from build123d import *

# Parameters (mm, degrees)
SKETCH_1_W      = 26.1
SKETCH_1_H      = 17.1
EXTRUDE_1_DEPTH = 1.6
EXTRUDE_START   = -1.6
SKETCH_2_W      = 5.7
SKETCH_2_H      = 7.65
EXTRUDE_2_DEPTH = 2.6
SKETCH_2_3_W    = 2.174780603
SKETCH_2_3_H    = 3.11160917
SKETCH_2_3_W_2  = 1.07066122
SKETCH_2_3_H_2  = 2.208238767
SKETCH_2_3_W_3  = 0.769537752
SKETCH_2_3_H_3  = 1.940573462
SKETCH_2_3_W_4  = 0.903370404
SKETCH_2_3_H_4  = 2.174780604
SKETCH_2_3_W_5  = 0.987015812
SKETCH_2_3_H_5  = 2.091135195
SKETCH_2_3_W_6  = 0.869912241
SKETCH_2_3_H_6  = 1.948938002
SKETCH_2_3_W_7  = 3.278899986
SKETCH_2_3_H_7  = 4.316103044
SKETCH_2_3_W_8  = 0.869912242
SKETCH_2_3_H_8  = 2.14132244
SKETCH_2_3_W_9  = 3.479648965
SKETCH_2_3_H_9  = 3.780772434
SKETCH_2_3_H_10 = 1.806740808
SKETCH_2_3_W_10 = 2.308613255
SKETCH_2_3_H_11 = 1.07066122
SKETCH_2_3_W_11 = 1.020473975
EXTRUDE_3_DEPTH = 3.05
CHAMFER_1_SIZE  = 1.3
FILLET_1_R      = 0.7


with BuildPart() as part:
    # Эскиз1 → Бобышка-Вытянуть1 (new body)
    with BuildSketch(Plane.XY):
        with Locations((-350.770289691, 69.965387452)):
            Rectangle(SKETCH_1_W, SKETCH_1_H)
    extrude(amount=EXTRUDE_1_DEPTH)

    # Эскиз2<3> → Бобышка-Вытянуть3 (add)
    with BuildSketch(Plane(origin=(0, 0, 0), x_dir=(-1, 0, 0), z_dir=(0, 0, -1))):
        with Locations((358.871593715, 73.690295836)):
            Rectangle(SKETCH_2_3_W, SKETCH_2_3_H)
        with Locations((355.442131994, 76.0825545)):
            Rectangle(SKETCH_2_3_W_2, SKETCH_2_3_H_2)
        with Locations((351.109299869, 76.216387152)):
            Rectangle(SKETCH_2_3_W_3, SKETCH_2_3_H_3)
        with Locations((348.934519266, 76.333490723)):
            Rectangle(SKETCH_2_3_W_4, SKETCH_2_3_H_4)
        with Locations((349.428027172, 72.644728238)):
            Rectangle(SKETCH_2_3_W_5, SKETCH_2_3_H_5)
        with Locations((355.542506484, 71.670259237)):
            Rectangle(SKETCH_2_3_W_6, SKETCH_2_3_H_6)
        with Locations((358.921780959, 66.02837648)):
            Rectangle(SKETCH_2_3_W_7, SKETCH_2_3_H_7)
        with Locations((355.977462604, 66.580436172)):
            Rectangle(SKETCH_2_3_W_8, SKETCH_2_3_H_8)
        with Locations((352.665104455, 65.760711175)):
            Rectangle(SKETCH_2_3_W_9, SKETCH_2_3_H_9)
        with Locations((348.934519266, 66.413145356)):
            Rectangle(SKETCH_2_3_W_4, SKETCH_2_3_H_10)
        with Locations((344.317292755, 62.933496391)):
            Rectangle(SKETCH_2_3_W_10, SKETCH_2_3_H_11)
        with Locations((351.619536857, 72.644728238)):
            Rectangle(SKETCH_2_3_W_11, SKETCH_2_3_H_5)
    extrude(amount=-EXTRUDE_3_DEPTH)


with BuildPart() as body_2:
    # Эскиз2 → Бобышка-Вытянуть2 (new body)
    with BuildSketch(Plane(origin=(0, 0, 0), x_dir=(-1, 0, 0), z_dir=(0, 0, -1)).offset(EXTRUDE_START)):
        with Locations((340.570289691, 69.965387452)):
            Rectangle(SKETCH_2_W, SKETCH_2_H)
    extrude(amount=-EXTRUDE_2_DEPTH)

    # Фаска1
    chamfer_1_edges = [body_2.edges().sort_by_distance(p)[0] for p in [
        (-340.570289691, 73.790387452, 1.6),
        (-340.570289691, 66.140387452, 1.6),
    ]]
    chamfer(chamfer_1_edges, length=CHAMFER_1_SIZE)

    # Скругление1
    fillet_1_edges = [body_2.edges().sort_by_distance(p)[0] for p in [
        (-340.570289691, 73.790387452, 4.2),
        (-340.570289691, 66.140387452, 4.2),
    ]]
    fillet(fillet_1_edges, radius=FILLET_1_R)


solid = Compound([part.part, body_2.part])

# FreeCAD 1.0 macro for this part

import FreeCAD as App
import Part
import Sketcher

V = App.Vector


def edges_at(feature, points):
    """Names of the edges that pass closest to the given points."""
    edges = feature.Shape.Edges
    near = lambda p: min(range(len(edges)), key=lambda i: edges[i].distToShape(Part.Vertex(*p))[0])
    return sorted({f"Edge{near(p) + 1}" for p in points})

doc = App.newDocument("Part")
params = doc.addObject("Spreadsheet::Sheet", "Params")
for row, (alias, value) in enumerate([
    ("sketch1_width", "26.1 mm"),
    ("sketch1_height", "17.1 mm"),
    ("pad1_length", "1.6 mm"),
    ("pad2_length", "3.05 mm"),
    ("sketch3_width", "5.7 mm"),
    ("sketch3_height", "7.65 mm"),
    ("pad3_length", "2.6 mm"),
    ("chamfer_size", "1.3 mm"),
    ("fillet_radius", "0.7 mm"),
], start=1):
    params.set(f"A{row}", alias)
    params.set(f"B{row}", "=" + value)
    params.setAlias(f"B{row}", alias)

body = doc.addObject("PartDesign::Body", "Body")

# Sketch on XY plane
sketch1 = body.newObject("Sketcher::SketchObject", "Sketch")
sketch1.AttachmentSupport = (doc.getObject("XY_Plane"), [""])
sketch1.MapMode = "FlatFace"
sketch1.addGeometry([
    Part.LineSegment(V(-363.82029, 78.515387, 0), V(-363.82029, 61.415387, 0)),
    Part.LineSegment(V(-363.82029, 61.415387, 0), V(-337.72029, 61.415387, 0)),
    Part.LineSegment(V(-337.72029, 61.415387, 0), V(-337.72029, 78.515387, 0)),
    Part.LineSegment(V(-337.72029, 78.515387, 0), V(-363.82029, 78.515387, 0)),
], False)
sketch1.addConstraint([
    Sketcher.Constraint("Coincident", 0, 2, 1, 1),
    Sketcher.Constraint("Coincident", 1, 2, 2, 1),
    Sketcher.Constraint("Coincident", 2, 2, 3, 1),
    Sketcher.Constraint("Coincident", 3, 2, 0, 1),
    Sketcher.Constraint("Vertical", 0),
    Sketcher.Constraint("Horizontal", 1),
    Sketcher.Constraint("Vertical", 2),
    Sketcher.Constraint("Horizontal", 3),
    Sketcher.Constraint("DistanceX", 1, 1, 1, 2, 26.1),
    Sketcher.Constraint("DistanceY", 0, 2, 0, 1, 17.1),
    Sketcher.Constraint("DistanceX", 0, 2, -1, 1, 363.82029),
    Sketcher.Constraint("DistanceY", -1, 1, 0, 2, 61.415387),
])
sketch1.setExpression("Constraints[8]", "Params.sketch1_width")
sketch1.setExpression("Constraints[9]", "Params.sketch1_height")
pad1 = body.newObject("PartDesign::Pad", "Pad")
pad1.Profile = sketch1
pad1.setExpression("Length", "Params.pad1_length")

# Sketch on XY plane
sketch2 = body.newObject("Sketcher::SketchObject", "Sketch001")
sketch2.AttachmentSupport = (doc.getObject("XY_Plane"), [""])
sketch2.MapMode = "FlatFace"
sketch2.addGeometry([
    Part.LineSegment(V(-357.784203, 75.2461, 0), V(-357.784203, 72.134491, 0)),  # 0
    Part.LineSegment(V(-357.784203, 72.134491, 0), V(-359.958984, 72.134491, 0)),  # 1
    Part.LineSegment(V(-359.958984, 72.134491, 0), V(-359.958984, 75.2461, 0)),  # 2
    Part.LineSegment(V(-359.958984, 75.2461, 0), V(-357.784203, 75.2461, 0)),  # 3
    Part.LineSegment(V(-354.906801, 77.186674, 0), V(-354.906801, 74.978435, 0)),  # 4
    Part.LineSegment(V(-354.906801, 74.978435, 0), V(-355.977463, 74.978435, 0)),  # 5
    Part.LineSegment(V(-355.977463, 74.978435, 0), V(-355.977463, 77.186674, 0)),  # 6
    Part.LineSegment(V(-355.977463, 77.186674, 0), V(-354.906801, 77.186674, 0)),  # 7
    Part.LineSegment(V(-350.724531, 77.186674, 0), V(-350.724531, 75.2461, 0)),  # 8
    Part.LineSegment(V(-350.724531, 75.2461, 0), V(-351.494069, 75.2461, 0)),  # 9
    Part.LineSegment(V(-351.494069, 75.2461, 0), V(-351.494069, 77.186674, 0)),  # 10
    Part.LineSegment(V(-351.494069, 77.186674, 0), V(-350.724531, 77.186674, 0)),  # 11
    Part.LineSegment(V(-348.482834, 77.420881, 0), V(-348.482834, 75.2461, 0)),  # 12
    Part.LineSegment(V(-348.482834, 75.2461, 0), V(-349.386204, 75.2461, 0)),  # 13
    Part.LineSegment(V(-349.386204, 75.2461, 0), V(-349.386204, 77.420881, 0)),  # 14
    Part.LineSegment(V(-349.386204, 77.420881, 0), V(-348.482834, 77.420881, 0)),  # 15
    Part.LineSegment(V(-348.934519, 73.690296, 0), V(-348.934519, 71.599161, 0)),  # 16
    Part.LineSegment(V(-348.934519, 71.599161, 0), V(-349.921535, 71.599161, 0)),  # 17
    Part.LineSegment(V(-349.921535, 71.599161, 0), V(-349.921535, 73.690296, 0)),  # 18
    Part.LineSegment(V(-349.921535, 73.690296, 0), V(-348.934519, 73.690296, 0)),  # 19
    Part.LineSegment(V(-355.10755, 72.644728, 0), V(-355.10755, 70.69579, 0)),  # 20
    Part.LineSegment(V(-355.10755, 70.69579, 0), V(-355.977463, 70.69579, 0)),  # 21
    Part.LineSegment(V(-355.977463, 70.69579, 0), V(-355.977463, 72.644728, 0)),  # 22
    Part.LineSegment(V(-355.977463, 72.644728, 0), V(-355.10755, 72.644728, 0)),  # 23
    Part.LineSegment(V(-357.282331, 68.186428, 0), V(-357.282331, 63.870325, 0)),  # 24
    Part.LineSegment(V(-357.282331, 63.870325, 0), V(-360.561231, 63.870325, 0)),  # 25
    Part.LineSegment(V(-360.561231, 63.870325, 0), V(-360.561231, 68.186428, 0)),  # 26
    Part.LineSegment(V(-360.561231, 68.186428, 0), V(-357.282331, 68.186428, 0)),  # 27
    Part.LineSegment(V(-355.542506, 67.651097, 0), V(-355.542506, 65.509775, 0)),  # 28
    Part.LineSegment(V(-355.542506, 65.509775, 0), V(-356.412419, 65.509775, 0)),  # 29
    Part.LineSegment(V(-356.412419, 65.509775, 0), V(-356.412419, 67.651097, 0)),  # 30
    Part.LineSegment(V(-356.412419, 67.651097, 0), V(-355.542506, 67.651097, 0)),  # 31
    Part.LineSegment(V(-350.92528, 67.651097, 0), V(-350.92528, 63.870325, 0)),  # 32
    Part.LineSegment(V(-350.92528, 63.870325, 0), V(-354.404929, 63.870325, 0)),  # 33
    Part.LineSegment(V(-354.404929, 63.870325, 0), V(-354.404929, 67.651097, 0)),  # 34
    Part.LineSegment(V(-354.404929, 67.651097, 0), V(-350.92528, 67.651097, 0)),  # 35
    Part.LineSegment(V(-348.482834, 67.316516, 0), V(-348.482834, 65.509775, 0)),  # 36
    Part.LineSegment(V(-348.482834, 65.509775, 0), V(-349.386204, 65.509775, 0)),  # 37
    Part.LineSegment(V(-349.386204, 65.509775, 0), V(-349.386204, 67.316516, 0)),  # 38
    Part.LineSegment(V(-349.386204, 67.316516, 0), V(-348.482834, 67.316516, 0)),  # 39
    Part.LineSegment(V(-343.162986, 63.468827, 0), V(-343.162986, 62.398166, 0)),  # 40
    Part.LineSegment(V(-343.162986, 62.398166, 0), V(-345.471599, 62.398166, 0)),  # 41
    Part.LineSegment(V(-345.471599, 62.398166, 0), V(-345.471599, 63.468827, 0)),  # 42
    Part.LineSegment(V(-345.471599, 63.468827, 0), V(-343.162986, 63.468827, 0)),  # 43
    Part.LineSegment(V(-351.1093, 73.690296, 0), V(-351.1093, 71.599161, 0)),  # 44
    Part.LineSegment(V(-351.1093, 71.599161, 0), V(-352.129774, 71.599161, 0)),  # 45
    Part.LineSegment(V(-352.129774, 71.599161, 0), V(-352.129774, 73.690296, 0)),  # 46
    Part.LineSegment(V(-352.129774, 73.690296, 0), V(-351.1093, 73.690296, 0)),  # 47
], False)
sketch2.addConstraint([
    Sketcher.Constraint("Coincident", 0, 2, 1, 1),
    Sketcher.Constraint("Coincident", 1, 2, 2, 1),
    Sketcher.Constraint("Coincident", 2, 2, 3, 1),
    Sketcher.Constraint("Coincident", 3, 2, 0, 1),
    Sketcher.Constraint("Coincident", 4, 2, 5, 1),
    Sketcher.Constraint("Coincident", 5, 2, 6, 1),
    Sketcher.Constraint("Coincident", 6, 2, 7, 1),
    Sketcher.Constraint("Coincident", 7, 2, 4, 1),
    Sketcher.Constraint("Coincident", 8, 2, 9, 1),
    Sketcher.Constraint("Coincident", 9, 2, 10, 1),
    Sketcher.Constraint("Coincident", 10, 2, 11, 1),
    Sketcher.Constraint("Coincident", 11, 2, 8, 1),
    Sketcher.Constraint("Coincident", 12, 2, 13, 1),
    Sketcher.Constraint("Coincident", 13, 2, 14, 1),
    Sketcher.Constraint("Coincident", 14, 2, 15, 1),
    Sketcher.Constraint("Coincident", 15, 2, 12, 1),
    Sketcher.Constraint("Coincident", 16, 2, 17, 1),
    Sketcher.Constraint("Coincident", 17, 2, 18, 1),
    Sketcher.Constraint("Coincident", 18, 2, 19, 1),
    Sketcher.Constraint("Coincident", 19, 2, 16, 1),
    Sketcher.Constraint("Coincident", 20, 2, 21, 1),
    Sketcher.Constraint("Coincident", 21, 2, 22, 1),
    Sketcher.Constraint("Coincident", 22, 2, 23, 1),
    Sketcher.Constraint("Coincident", 23, 2, 20, 1),
    Sketcher.Constraint("Coincident", 24, 2, 25, 1),
    Sketcher.Constraint("Coincident", 25, 2, 26, 1),
    Sketcher.Constraint("Coincident", 26, 2, 27, 1),
    Sketcher.Constraint("Coincident", 27, 2, 24, 1),
    Sketcher.Constraint("Coincident", 28, 2, 29, 1),
    Sketcher.Constraint("Coincident", 29, 2, 30, 1),
    Sketcher.Constraint("Coincident", 30, 2, 31, 1),
    Sketcher.Constraint("Coincident", 31, 2, 28, 1),
    Sketcher.Constraint("Coincident", 32, 2, 33, 1),
    Sketcher.Constraint("Coincident", 33, 2, 34, 1),
    Sketcher.Constraint("Coincident", 34, 2, 35, 1),
    Sketcher.Constraint("Coincident", 35, 2, 32, 1),
    Sketcher.Constraint("Coincident", 36, 2, 37, 1),
    Sketcher.Constraint("Coincident", 37, 2, 38, 1),
    Sketcher.Constraint("Coincident", 38, 2, 39, 1),
    Sketcher.Constraint("Coincident", 39, 2, 36, 1),
    Sketcher.Constraint("Coincident", 40, 2, 41, 1),
    Sketcher.Constraint("Coincident", 41, 2, 42, 1),
    Sketcher.Constraint("Coincident", 42, 2, 43, 1),
    Sketcher.Constraint("Coincident", 43, 2, 40, 1),
    Sketcher.Constraint("Coincident", 44, 2, 45, 1),
    Sketcher.Constraint("Coincident", 45, 2, 46, 1),
    Sketcher.Constraint("Coincident", 46, 2, 47, 1),
    Sketcher.Constraint("Coincident", 47, 2, 44, 1),
    Sketcher.Constraint("Vertical", 0),
    Sketcher.Constraint("Horizontal", 1),
    Sketcher.Constraint("Vertical", 2),
    Sketcher.Constraint("Horizontal", 3),
    Sketcher.Constraint("Vertical", 4),
    Sketcher.Constraint("Horizontal", 5),
    Sketcher.Constraint("Vertical", 6),
    Sketcher.Constraint("Horizontal", 7),
    Sketcher.Constraint("Vertical", 8),
    Sketcher.Constraint("Horizontal", 9),
    Sketcher.Constraint("Vertical", 10),
    Sketcher.Constraint("Horizontal", 11),
    Sketcher.Constraint("Vertical", 12),
    Sketcher.Constraint("Horizontal", 13),
    Sketcher.Constraint("Vertical", 14),
    Sketcher.Constraint("Horizontal", 15),
    Sketcher.Constraint("Vertical", 16),
    Sketcher.Constraint("Horizontal", 17),
    Sketcher.Constraint("Vertical", 18),
    Sketcher.Constraint("Horizontal", 19),
    Sketcher.Constraint("Vertical", 20),
    Sketcher.Constraint("Horizontal", 21),
    Sketcher.Constraint("Vertical", 22),
    Sketcher.Constraint("Horizontal", 23),
    Sketcher.Constraint("Vertical", 24),
    Sketcher.Constraint("Horizontal", 25),
    Sketcher.Constraint("Vertical", 26),
    Sketcher.Constraint("Horizontal", 27),
    Sketcher.Constraint("Vertical", 28),
    Sketcher.Constraint("Horizontal", 29),
    Sketcher.Constraint("Vertical", 30),
    Sketcher.Constraint("Horizontal", 31),
    Sketcher.Constraint("Vertical", 32),
    Sketcher.Constraint("Horizontal", 33),
    Sketcher.Constraint("Vertical", 34),
    Sketcher.Constraint("Horizontal", 35),
    Sketcher.Constraint("Vertical", 36),
    Sketcher.Constraint("Horizontal", 37),
    Sketcher.Constraint("Vertical", 38),
    Sketcher.Constraint("Horizontal", 39),
    Sketcher.Constraint("Vertical", 40),
    Sketcher.Constraint("Horizontal", 41),
    Sketcher.Constraint("Vertical", 42),
    Sketcher.Constraint("Horizontal", 43),
    Sketcher.Constraint("Vertical", 44),
    Sketcher.Constraint("Horizontal", 45),
    Sketcher.Constraint("Vertical", 46),
    Sketcher.Constraint("Horizontal", 47),
    Sketcher.Constraint("Horizontal", 3, 2, 8, 2),
    Sketcher.Constraint("Horizontal", 7, 2, 10, 2),
    Sketcher.Constraint("Horizontal", 9, 2, 12, 2),
    Sketcher.Constraint("Horizontal", 25, 2, 32, 2),
    Sketcher.Constraint("Horizontal", 31, 2, 34, 2),
    Sketcher.Constraint("Horizontal", 29, 2, 36, 2),
    Sketcher.Constraint("Horizontal", 17, 2, 44, 2),
    Sketcher.Constraint("Horizontal", 19, 2, 46, 2),
    Sketcher.Constraint("Vertical", 6, 2, 21, 2),
    Sketcher.Constraint("Vertical", 15, 2, 36, 2),
    Sketcher.Constraint("Vertical", 14, 2, 37, 2),
    Sketcher.Constraint("Equal", 23, 29),
    Sketcher.Constraint("Equal", 3, 12),
    Sketcher.Constraint("Equal", 7, 40),
    Sketcher.Constraint("DistanceX", 25, 2, 25, 1, 3.2789),
    Sketcher.Constraint("DistanceX", 1, 2, 1, 1, 2.174781),
    Sketcher.Constraint("DistanceX", 5, 2, 5, 1, 1.070661),
    Sketcher.Constraint("DistanceX", 13, 2, 13, 1, 0.90337),
    Sketcher.Constraint("DistanceX", 33, 2, 33, 1, 3.479649),
    Sketcher.Constraint("DistanceY", 0, 2, 0, 1, 3.111609),
    Sketcher.Constraint("DistanceY", 4, 2, 4, 1, 2.208239),
    Sketcher.Constraint("DistanceY", 20, 2, 20, 1, 1.948938),
    Sketcher.Constraint("DistanceY", 36, 2, 36, 1, 1.806741),
    Sketcher.Constraint("DistanceY", -1, 1, 2, 2, 75.2461),
    Sketcher.Constraint("DistanceX", 4, 2, -1, 1, 354.906801),
    Sketcher.Constraint("DistanceX", 41, 2, -1, 1, 345.471599),
    Sketcher.Constraint("DistanceX", 44, 2, -1, 1, 351.1093),
    Sketcher.Constraint("DistanceX", 17, 2, 12, 2, 1.438701),
    Sketcher.Constraint("DistanceY", 20, 2, 0, 2, 1.438701),
    Sketcher.Constraint("DistanceX", 9, 2, 9, 1, 0.769538),
    Sketcher.Constraint("DistanceX", 17, 2, 17, 1, 0.987016),
    Sketcher.Constraint("DistanceX", 21, 2, 21, 1, 0.869912),
    Sketcher.Constraint("DistanceX", 41, 2, 41, 1, 2.308613),
    Sketcher.Constraint("DistanceX", 45, 2, 45, 1, 1.020474),
    Sketcher.Constraint("DistanceY", 8, 2, 8, 1, 1.940573),
    Sketcher.Constraint("DistanceY", 16, 2, 16, 1, 2.091135),
    Sketcher.Constraint("DistanceY", 24, 2, 24, 1, 4.316103),
    Sketcher.Constraint("DistanceY", 28, 2, 28, 1, 2.141322),
    Sketcher.Constraint("DistanceY", 32, 2, 32, 1, 3.780772),
    Sketcher.Constraint("DistanceX", 8, 2, -1, 1, 350.724531),
    Sketcher.Constraint("DistanceX", 16, 2, -1, 1, 348.934519),
    Sketcher.Constraint("DistanceY", -1, 1, 16, 2, 71.599161),
    Sketcher.Constraint("DistanceX", 24, 2, -1, 1, 357.282331),
    Sketcher.Constraint("DistanceY", -1, 1, 26, 2, 68.186428),
    Sketcher.Constraint("DistanceX", 29, 2, -1, 1, 356.412419),
    Sketcher.Constraint("DistanceX", 32, 2, -1, 1, 350.92528),
    Sketcher.Constraint("DistanceX", 3, 2, 5, 2, 1.806741),
    Sketcher.Constraint("DistanceY", 40, 2, 36, 2, 3.111609),
])
pad2 = body.newObject("PartDesign::Pad", "Pad001")
pad2.Profile = sketch2
pad2.setExpression("Length", "Params.pad2_length")
body2 = doc.addObject("PartDesign::Body", "Body001")

# Sketch on XY plane
sketch3 = body2.newObject("Sketcher::SketchObject", "Sketch002")
sketch3.AttachmentSupport = (doc.getObject("XY_Plane001"), [""])
sketch3.MapMode = "FlatFace"
sketch3.AttachmentOffset = App.Placement(V(0, 0, 1.6), App.Rotation())
sketch3.addGeometry([
    Part.LineSegment(V(-337.72029, 73.790387, 0), V(-337.72029, 66.140387, 0)),
    Part.LineSegment(V(-337.72029, 66.140387, 0), V(-343.42029, 66.140387, 0)),
    Part.LineSegment(V(-343.42029, 66.140387, 0), V(-343.42029, 73.790387, 0)),
    Part.LineSegment(V(-343.42029, 73.790387, 0), V(-337.72029, 73.790387, 0)),
], False)
sketch3.addConstraint([
    Sketcher.Constraint("Coincident", 0, 2, 1, 1),
    Sketcher.Constraint("Coincident", 1, 2, 2, 1),
    Sketcher.Constraint("Coincident", 2, 2, 3, 1),
    Sketcher.Constraint("Coincident", 3, 2, 0, 1),
    Sketcher.Constraint("Vertical", 0),
    Sketcher.Constraint("Horizontal", 1),
    Sketcher.Constraint("Vertical", 2),
    Sketcher.Constraint("Horizontal", 3),
    Sketcher.Constraint("DistanceX", 1, 2, 1, 1, 5.7),
    Sketcher.Constraint("DistanceY", 0, 2, 0, 1, 7.65),
    Sketcher.Constraint("DistanceX", 0, 2, -1, 1, 337.72029),
    Sketcher.Constraint("DistanceY", -1, 1, 0, 2, 66.140387),
])
sketch3.setExpression("Constraints[8]", "Params.sketch3_width")
sketch3.setExpression("Constraints[9]", "Params.sketch3_height")
pad3 = body2.newObject("PartDesign::Pad", "Pad002")
pad3.Profile = sketch3
pad3.setExpression("Length", "Params.pad3_length")
doc.recompute()

chamfer = body2.newObject("PartDesign::Chamfer", "Chamfer")
chamfer.Base = (pad3, edges_at(pad3, [(-340.57, 73.79, 1.6), (-340.57, 66.14, 1.6)]))
chamfer.setExpression("Size", "Params.chamfer_size")
doc.recompute()

fillet = body2.newObject("PartDesign::Fillet", "Fillet")
fillet.Base = (chamfer, edges_at(chamfer, [(-340.57, 73.79, 4.2), (-340.57, 66.14, 4.2)]))
fillet.setExpression("Radius", "Params.fillet_radius")

doc.recompute()
